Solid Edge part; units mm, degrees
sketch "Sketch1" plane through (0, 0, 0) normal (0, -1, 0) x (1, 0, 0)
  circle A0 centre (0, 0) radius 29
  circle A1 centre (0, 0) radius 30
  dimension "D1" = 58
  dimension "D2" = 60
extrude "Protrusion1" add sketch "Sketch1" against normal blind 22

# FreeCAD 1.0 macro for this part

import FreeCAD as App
import Part
import Sketcher

V = App.Vector

doc = App.newDocument("Part")
params = doc.addObject("Spreadsheet::Sheet", "Params")
for row, (alias, value) in enumerate([
    ("sketch1_diameter", "60 mm"),
    ("sketch1_diameter2", "58 mm"),
    ("pad1_length", "22 mm"),
], start=1):
    params.set(f"A{row}", alias)
    params.set(f"B{row}", "=" + value)
    params.setAlias(f"B{row}", alias)

body = doc.addObject("PartDesign::Body", "Body")

# Sketch on XZ plane
sketch1 = body.newObject("Sketcher::SketchObject", "Sketch")
sketch1.AttachmentSupport = (doc.getObject("XZ_Plane"), [""])
sketch1.MapMode = "FlatFace"
sketch1.addGeometry([
    Part.Circle(V(0, 0, 0), V(0, 0, 1), 30),
    Part.Circle(V(0, 0, 0), V(0, 0, 1), 29),
], False)
sketch1.addConstraint([
    Sketcher.Constraint("Coincident", 0, 3, -1, 1),
    Sketcher.Constraint("Coincident", 1, 3, -1, 1),
    Sketcher.Constraint("Diameter", 0, 60.0),
    Sketcher.Constraint("Diameter", 1, 58.0),
])
sketch1.setExpression("Constraints[2]", "Params.sketch1_diameter")
sketch1.setExpression("Constraints[3]", "Params.sketch1_diameter2")
pad1 = body.newObject("PartDesign::Pad", "Pad")
pad1.Profile = sketch1
pad1.setExpression("Length", "Params.pad1_length")
pad1.Reversed = True

doc.recompute()
